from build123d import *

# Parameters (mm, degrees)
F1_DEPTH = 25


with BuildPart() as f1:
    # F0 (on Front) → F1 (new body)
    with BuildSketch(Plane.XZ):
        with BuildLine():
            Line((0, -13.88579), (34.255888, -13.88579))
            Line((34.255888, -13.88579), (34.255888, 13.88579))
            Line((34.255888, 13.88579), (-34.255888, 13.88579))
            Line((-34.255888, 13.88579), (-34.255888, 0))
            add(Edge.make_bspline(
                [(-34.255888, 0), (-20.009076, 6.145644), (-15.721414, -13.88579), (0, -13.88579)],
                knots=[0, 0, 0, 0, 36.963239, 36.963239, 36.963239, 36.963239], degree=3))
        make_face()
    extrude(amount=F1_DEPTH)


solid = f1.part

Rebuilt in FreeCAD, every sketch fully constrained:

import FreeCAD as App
import Part
import Sketcher
from FreeCAD import Vector

doc = App.newDocument("Part")
body = doc.addObject("PartDesign::Body", "Body")

sketch1 = doc.addObject("Sketcher::SketchObject", "Sketch")
body.addObject(sketch1)
sketch1.AttachmentSupport = (doc.XZ_Plane, [""])
sketch1.MapMode = "FlatFace"
sketch1.addGeometry([
    Part.LineSegment(Vector(0, -13.88579, 0), Vector(34.255888, -13.88579, 0)),
    Part.LineSegment(Vector(34.255888, -13.88579, 0), Vector(34.255888, 13.88579, 0)),
    Part.LineSegment(Vector(34.255888, 13.88579, 0), Vector(-34.255888, 13.88579, 0)),
    Part.LineSegment(Vector(-34.255888, 13.88579, 0), Vector(-34.255888, 0, 0)),
    Part.BSplineCurve([Vector(-34.255888, 0, 0), Vector(-20.009076, 6.145644, 0), Vector(-15.721414, -13.88579, 0), Vector(0, -13.88579, 0)], [4, 4], [0, 36.963239], False, 3, [1, 1, 1, 1], False),
], False)
sketch1.addConstraint([
    Sketcher.Constraint("Block", 4),
    Sketcher.Constraint("Coincident", 0, 2, 1, 1),
    Sketcher.Constraint("Coincident", 1, 2, 2, 1),
    Sketcher.Constraint("Coincident", 2, 2, 3, 1),
    Sketcher.Constraint("Coincident", 3, 2, 4, 1),
    Sketcher.Constraint("Coincident", 4, 2, 0, 1),
    Sketcher.Constraint("Horizontal", 0),
    Sketcher.Constraint("Vertical", 1),
    Sketcher.Constraint("Horizontal", 2),
    Sketcher.Constraint("Vertical", 3),
    Sketcher.Constraint("Symmetric", 0, 2, 2, 2, -1, 1),
])
pad1 = doc.addObject("PartDesign::Pad", "Pad")
body.addObject(pad1)
pad1.Profile = sketch1
pad1.Length = 25

doc.recompute()
